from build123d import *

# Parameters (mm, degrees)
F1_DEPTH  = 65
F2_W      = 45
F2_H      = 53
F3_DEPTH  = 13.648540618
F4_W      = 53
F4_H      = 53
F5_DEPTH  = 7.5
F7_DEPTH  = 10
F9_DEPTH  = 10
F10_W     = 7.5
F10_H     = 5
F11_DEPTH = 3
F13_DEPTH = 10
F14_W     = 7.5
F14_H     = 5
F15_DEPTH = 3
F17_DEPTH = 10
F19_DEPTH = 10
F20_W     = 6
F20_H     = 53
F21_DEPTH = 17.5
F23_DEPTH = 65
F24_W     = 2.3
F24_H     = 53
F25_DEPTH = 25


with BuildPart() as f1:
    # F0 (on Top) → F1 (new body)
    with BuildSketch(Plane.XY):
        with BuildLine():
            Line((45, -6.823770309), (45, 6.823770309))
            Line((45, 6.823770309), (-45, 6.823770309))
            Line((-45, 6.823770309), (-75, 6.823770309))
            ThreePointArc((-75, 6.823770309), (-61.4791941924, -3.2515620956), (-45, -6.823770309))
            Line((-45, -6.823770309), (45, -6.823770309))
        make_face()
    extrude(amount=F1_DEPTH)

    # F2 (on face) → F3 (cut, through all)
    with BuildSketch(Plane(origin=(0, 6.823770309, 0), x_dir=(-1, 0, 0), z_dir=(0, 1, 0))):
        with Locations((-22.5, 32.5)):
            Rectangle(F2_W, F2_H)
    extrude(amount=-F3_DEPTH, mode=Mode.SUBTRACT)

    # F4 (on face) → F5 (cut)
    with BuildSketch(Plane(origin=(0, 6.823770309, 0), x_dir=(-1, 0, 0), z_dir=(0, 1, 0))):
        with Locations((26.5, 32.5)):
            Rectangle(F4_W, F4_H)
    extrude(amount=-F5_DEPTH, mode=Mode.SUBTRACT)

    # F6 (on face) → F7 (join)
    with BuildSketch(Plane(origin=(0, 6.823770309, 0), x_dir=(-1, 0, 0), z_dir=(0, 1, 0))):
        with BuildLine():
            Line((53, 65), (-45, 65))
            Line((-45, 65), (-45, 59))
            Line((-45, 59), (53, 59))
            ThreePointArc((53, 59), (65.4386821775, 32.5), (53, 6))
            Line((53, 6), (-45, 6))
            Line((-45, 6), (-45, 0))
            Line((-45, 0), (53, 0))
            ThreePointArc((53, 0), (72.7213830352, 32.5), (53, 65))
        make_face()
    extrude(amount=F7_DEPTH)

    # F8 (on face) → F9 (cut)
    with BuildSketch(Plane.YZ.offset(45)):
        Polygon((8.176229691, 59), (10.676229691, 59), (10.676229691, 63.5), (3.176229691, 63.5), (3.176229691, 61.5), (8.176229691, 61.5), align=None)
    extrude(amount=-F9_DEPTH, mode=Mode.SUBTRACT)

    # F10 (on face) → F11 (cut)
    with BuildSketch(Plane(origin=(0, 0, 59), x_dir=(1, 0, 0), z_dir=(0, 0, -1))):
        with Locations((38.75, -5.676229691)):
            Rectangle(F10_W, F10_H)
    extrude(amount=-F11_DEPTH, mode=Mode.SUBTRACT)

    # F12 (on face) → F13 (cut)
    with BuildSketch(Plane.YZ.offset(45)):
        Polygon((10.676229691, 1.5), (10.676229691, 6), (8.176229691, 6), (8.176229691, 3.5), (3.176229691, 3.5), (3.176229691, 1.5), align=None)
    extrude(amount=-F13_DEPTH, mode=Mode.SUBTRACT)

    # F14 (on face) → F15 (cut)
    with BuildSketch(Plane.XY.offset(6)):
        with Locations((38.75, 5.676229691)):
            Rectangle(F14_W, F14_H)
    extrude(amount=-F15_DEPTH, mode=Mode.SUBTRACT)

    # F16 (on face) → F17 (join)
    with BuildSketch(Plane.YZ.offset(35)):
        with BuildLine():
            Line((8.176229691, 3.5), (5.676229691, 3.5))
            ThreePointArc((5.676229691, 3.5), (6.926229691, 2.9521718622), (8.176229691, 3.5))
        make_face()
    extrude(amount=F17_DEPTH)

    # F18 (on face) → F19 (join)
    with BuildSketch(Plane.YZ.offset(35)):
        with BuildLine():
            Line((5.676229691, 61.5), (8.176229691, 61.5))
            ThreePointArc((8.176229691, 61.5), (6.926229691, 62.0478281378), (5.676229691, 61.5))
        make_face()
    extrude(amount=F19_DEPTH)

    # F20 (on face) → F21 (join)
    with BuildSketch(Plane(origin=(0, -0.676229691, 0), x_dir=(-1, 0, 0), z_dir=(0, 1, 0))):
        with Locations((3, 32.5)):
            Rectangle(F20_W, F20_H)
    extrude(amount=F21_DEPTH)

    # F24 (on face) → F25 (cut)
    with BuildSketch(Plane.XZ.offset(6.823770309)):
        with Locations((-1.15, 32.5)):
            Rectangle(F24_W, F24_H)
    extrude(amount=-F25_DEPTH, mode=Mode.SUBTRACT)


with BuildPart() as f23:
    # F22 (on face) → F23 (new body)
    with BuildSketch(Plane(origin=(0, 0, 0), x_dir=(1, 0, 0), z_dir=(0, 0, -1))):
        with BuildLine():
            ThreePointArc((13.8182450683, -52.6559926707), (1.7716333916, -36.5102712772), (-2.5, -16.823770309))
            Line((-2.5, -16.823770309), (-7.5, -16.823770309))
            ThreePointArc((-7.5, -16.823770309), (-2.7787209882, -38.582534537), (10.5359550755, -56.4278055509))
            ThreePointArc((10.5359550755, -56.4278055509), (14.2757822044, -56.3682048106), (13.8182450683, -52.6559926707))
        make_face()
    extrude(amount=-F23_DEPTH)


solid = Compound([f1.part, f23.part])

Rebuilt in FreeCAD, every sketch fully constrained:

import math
import FreeCAD as App
import Part
import Sketcher

V = App.Vector


def add_polygon(sketch, points):
    """Adds a closed chain of lines whose ends are joined by coincident constraints."""
    first, n = sketch.GeometryCount, len(points)
    for a, b in zip(points, points[1:] + points[:1]):
        sketch.addGeometry(Part.LineSegment(App.Vector(*a, 0), App.Vector(*b, 0)), False)
    for i in range(n):
        sketch.addConstraint(Sketcher.Constraint("Coincident", first + i, 2, first + (i + 1) % n, 1))

doc = App.newDocument("Part")
body = doc.addObject("PartDesign::Body", "Body")

# Sketch on XY plane
sketch1 = body.newObject("Sketcher::SketchObject", "Sketch")
sketch1.AttachmentSupport = (doc.getObject("XY_Plane"), [""])
sketch1.MapMode = "FlatFace"
sketch1.addGeometry([
    Part.LineSegment(V(45, -6.82377, 0), V(45, 6.82377, 0)),
    Part.LineSegment(V(45, 6.82377, 0), V(-75, 6.82377, 0)),
    Part.ArcOfCircle(Part.Circle(V(-45, 32.972974, 0), V(0, 0, 1), 39.796744), math.radians(-138.923287), math.radians(-90)),
    Part.LineSegment(V(-45, -6.82377, 0), V(45, -6.82377, 0)),
], False)
sketch1.addConstraint([
    Sketcher.Constraint("Coincident", 0, 2, 1, 1),
    Sketcher.Constraint("Coincident", 1, 2, 2, 1),
    Sketcher.Constraint("Tangent", 2, 2, 3, 1),
    Sketcher.Constraint("Coincident", 3, 2, 0, 1),
    Sketcher.Constraint("Vertical", 0),
    Sketcher.Constraint("Horizontal", 1),
    Sketcher.Constraint("Horizontal", 3),
    Sketcher.Constraint("Symmetric", 0, 2, 2, 2, -1, 1),
    Sketcher.Constraint("DistanceX", 1, 2, 1, 1, 120.0),
    Sketcher.Constraint("DistanceX", 3, 1, 3, 2, 90.0),
    Sketcher.Constraint("Radius", 2, 39.796744),
])
pad1 = body.newObject("PartDesign::Pad", "Pad")
pad1.Profile = sketch1
pad1.Length = 65

# Sketch on XZ plane
sketch2 = body.newObject("Sketcher::SketchObject", "Sketch001")
sketch2.AttachmentSupport = (doc.getObject("XZ_Plane"), [""])
sketch2.MapMode = "FlatFace"
sketch2.AttachmentOffset = App.Placement(V(0, 0, -6.82377), App.Rotation())
add_polygon(sketch2, [(45, 59), (45, 6), (0, 6), (0, 59)])  # lines 0-3
sketch2.addConstraint([
    Sketcher.Constraint("Vertical", 0),
    Sketcher.Constraint("Horizontal", 1),
    Sketcher.Constraint("Vertical", 2),
    Sketcher.Constraint("Horizontal", 3),
    Sketcher.Constraint("PointOnObject", 1, 2, -2),
    Sketcher.Constraint("DistanceX", 1, 2, 1, 1, 45.0),
    Sketcher.Constraint("DistanceY", 0, 2, 0, 1, 53.0),
    Sketcher.Constraint("DistanceY", -1, 1, 0, 2, 6.0),
])
pocket1 = body.newObject("PartDesign::Pocket", "Pocket")
pocket1.Profile = sketch2
pocket1.Type = "ThroughAll"
pocket1.Reversed = True

# Sketch on XZ plane
sketch3 = body.newObject("Sketcher::SketchObject", "Sketch002")
sketch3.AttachmentSupport = (doc.getObject("XZ_Plane"), [""])
sketch3.MapMode = "FlatFace"
sketch3.AttachmentOffset = App.Placement(V(0, 0, -6.82377), App.Rotation())
add_polygon(sketch3, [(0, 59), (0, 6), (-53, 6), (-53, 59)])  # lines 0-3
sketch3.addConstraint([
    Sketcher.Constraint("Vertical", 0),
    Sketcher.Constraint("Horizontal", 1),
    Sketcher.Constraint("Vertical", 2),
    Sketcher.Constraint("Horizontal", 3),
    Sketcher.Constraint("PointOnObject", 0, 2, -2),
    Sketcher.Constraint("Equal", 3, 0),
    Sketcher.Constraint("DistanceX", 1, 2, 1, 1, 53.0),
    Sketcher.Constraint("DistanceY", -1, 1, 0, 2, 6.0),
])
pocket2 = body.newObject("PartDesign::Pocket", "Pocket001")
pocket2.Profile = sketch3
pocket2.Length = 7.5
pocket2.Reversed = True

# Sketch on XZ plane
sketch4 = body.newObject("Sketcher::SketchObject", "Sketch003")
sketch4.AttachmentSupport = (doc.getObject("XZ_Plane"), [""])
sketch4.MapMode = "FlatFace"
sketch4.AttachmentOffset = App.Placement(V(0, 0, -6.82377), App.Rotation())
sketch4.addGeometry([
    Part.LineSegment(V(-53, 65, 0), V(45, 65, 0)),  # 0
    Part.LineSegment(V(45, 65, 0), V(45, 59, 0)),  # 1
    Part.LineSegment(V(45, 59, 0), V(-53, 59, 0)),  # 2
    Part.ArcOfCircle(Part.Circle(V(-30.990868, 32.5, 0), V(0, 0, 1), 34.447814), math.radians(129.710759), math.radians(230.289241)),  # 3
    Part.LineSegment(V(-53, 6, 0), V(45, 6, 0)),  # 4
    Part.LineSegment(V(45, 6, 0), V(45, 0, 0)),  # 5
    Part.LineSegment(V(45, 0, 0), V(-53, 0, 0)),  # 6
    Part.ArcOfCircle(Part.Circle(V(-36.081383, 32.5, 0), V(0, 0, 1), 36.64), math.radians(117.500261), math.radians(242.499739)),  # 7
], False)
sketch4.addConstraint([
    Sketcher.Constraint("Coincident", 0, 2, 1, 1),
    Sketcher.Constraint("Coincident", 1, 2, 2, 1),
    Sketcher.Constraint("Coincident", 2, 2, 3, 1),
    Sketcher.Constraint("Coincident", 3, 2, 4, 1),
    Sketcher.Constraint("Coincident", 4, 2, 5, 1),
    Sketcher.Constraint("Coincident", 5, 2, 6, 1),
    Sketcher.Constraint("Coincident", 6, 2, 7, 2),
    Sketcher.Constraint("Coincident", 7, 1, 0, 1),
    Sketcher.Constraint("Horizontal", 0),
    Sketcher.Constraint("Vertical", 1),
    Sketcher.Constraint("Horizontal", 2),
    Sketcher.Constraint("Horizontal", 4),
    Sketcher.Constraint("Vertical", 5),
    Sketcher.Constraint("Horizontal", 6),
    Sketcher.Constraint("PointOnObject", 5, 2, -1),
    Sketcher.Constraint("Horizontal", 3, 3, 7, 3),
    Sketcher.Constraint("Vertical", 2, 2, 3, 2),
    Sketcher.Constraint("Vertical", 1, 2, 4, 2),
    Sketcher.Constraint("Vertical", 3, 2, 6, 2),
    Sketcher.Constraint("Vertical", 6, 2, 7, 1),
    Sketcher.Constraint("DistanceX", 0, 1, 0, 2, 98.0),
    Sketcher.Constraint("DistanceY", 1, 2, 1, 1, 6.0),
    Sketcher.Constraint("Radius", 7, 36.64),
    Sketcher.Constraint("DistanceX", -1, 1, 0, 2, 45.0),
    Sketcher.Constraint("DistanceY", -1, 1, 0, 2, 65.0),
    Sketcher.Constraint("Radius", 3, 34.447814),
])
pad2 = body.newObject("PartDesign::Pad", "Pad001")
pad2.Profile = sketch4
pad2.Length = 10
pad2.Reversed = True

# Sketch on YZ plane
sketch5 = body.newObject("Sketcher::SketchObject", "Sketch004")
sketch5.AttachmentSupport = (doc.getObject("YZ_Plane"), [""])
sketch5.MapMode = "FlatFace"
sketch5.AttachmentOffset = App.Placement(V(0, 0, 45), App.Rotation())
add_polygon(sketch5, [(8.17623, 59), (10.67623, 59), (10.67623, 63.5), (3.17623, 63.5), (3.17623, 61.5), (8.17623, 61.5)])  # lines 0-5
sketch5.addConstraint([
    Sketcher.Constraint("Horizontal", 0),
    Sketcher.Constraint("Vertical", 1),
    Sketcher.Constraint("Horizontal", 2),
    Sketcher.Constraint("Vertical", 3),
    Sketcher.Constraint("Horizontal", 4),
    Sketcher.Constraint("Vertical", 5),
    Sketcher.Constraint("Equal", 0, 5),
    Sketcher.Constraint("DistanceX", 4, 1, 4, 2, 5.0),
    Sketcher.Constraint("DistanceY", 3, 2, 3, 1, 2.0),
    Sketcher.Constraint("DistanceX", 0, 1, 0, 2, 2.5),
    Sketcher.Constraint("DistanceY", -1, 1, 0, 2, 59.0),
    Sketcher.Constraint("DistanceX", -1, 1, 0, 2, 10.67623),
])
pocket3 = body.newObject("PartDesign::Pocket", "Pocket002")
pocket3.Profile = sketch5
pocket3.Length = 10

# Sketch on XY plane
sketch6 = body.newObject("Sketcher::SketchObject", "Sketch005")
sketch6.AttachmentSupport = (doc.getObject("XY_Plane"), [""])
sketch6.MapMode = "FlatFace"
sketch6.AttachmentOffset = App.Placement(V(0, 0, 59), App.Rotation())
add_polygon(sketch6, [(35, 3.17623), (35, 8.17623), (42.5, 8.17623), (42.5, 3.17623)])  # lines 0-3
sketch6.addConstraint([
    Sketcher.Constraint("Vertical", 0),
    Sketcher.Constraint("Horizontal", 1),
    Sketcher.Constraint("Vertical", 2),
    Sketcher.Constraint("Horizontal", 3),
    Sketcher.Constraint("DistanceY", 0, 1, 0, 2, 5.0),
    Sketcher.Constraint("DistanceX", 1, 1, 1, 2, 7.5),
    Sketcher.Constraint("DistanceX", -1, 1, 0, 2, 35.0),
    Sketcher.Constraint("DistanceY", -1, 1, 0, 2, 8.17623),
])
pocket4 = body.newObject("PartDesign::Pocket", "Pocket003")
pocket4.Profile = sketch6
pocket4.Length = 3
pocket4.Reversed = True

# Sketch on YZ plane
sketch7 = body.newObject("Sketcher::SketchObject", "Sketch006")
sketch7.AttachmentSupport = (doc.getObject("YZ_Plane"), [""])
sketch7.MapMode = "FlatFace"
sketch7.AttachmentOffset = App.Placement(V(0, 0, 45), App.Rotation())
add_polygon(sketch7, [(10.67623, 1.5), (10.67623, 6), (8.17623, 6), (8.17623, 3.5), (3.17623, 3.5), (3.17623, 1.5)])  # lines 0-5
sketch7.addConstraint([
    Sketcher.Constraint("Vertical", 0),
    Sketcher.Constraint("Horizontal", 1),
    Sketcher.Constraint("Vertical", 2),
    Sketcher.Constraint("Horizontal", 3),
    Sketcher.Constraint("Vertical", 4),
    Sketcher.Constraint("Horizontal", 5),
    Sketcher.Constraint("Equal", 1, 2),
    Sketcher.Constraint("DistanceX", 3, 2, 3, 1, 5.0),
    Sketcher.Constraint("DistanceY", 4, 2, 4, 1, 2.0),
    Sketcher.Constraint("DistanceX", 1, 2, 1, 1, 2.5),
    Sketcher.Constraint("DistanceY", -1, 1, 0, 2, 6.0),
    Sketcher.Constraint("DistanceX", -1, 1, 0, 2, 10.67623),
])
pocket5 = body.newObject("PartDesign::Pocket", "Pocket004")
pocket5.Profile = sketch7
pocket5.Length = 10

# Sketch on XY plane
sketch8 = body.newObject("Sketcher::SketchObject", "Sketch007")
sketch8.AttachmentSupport = (doc.getObject("XY_Plane"), [""])
sketch8.MapMode = "FlatFace"
sketch8.AttachmentOffset = App.Placement(V(0, 0, 6), App.Rotation())
add_polygon(sketch8, [(35, 8.17623), (35, 3.17623), (42.5, 3.17623), (42.5, 8.17623)])  # lines 0-3
sketch8.addConstraint([
    Sketcher.Constraint("Vertical", 0),
    Sketcher.Constraint("Horizontal", 1),
    Sketcher.Constraint("Vertical", 2),
    Sketcher.Constraint("Horizontal", 3),
    Sketcher.Constraint("DistanceY", 0, 2, 0, 1, 5.0),
    Sketcher.Constraint("DistanceX", 1, 1, 1, 2, 7.5),
    Sketcher.Constraint("DistanceX", -1, 1, 0, 2, 35.0),
    Sketcher.Constraint("DistanceY", -1, 1, 0, 2, 3.17623),
])
pocket6 = body.newObject("PartDesign::Pocket", "Pocket005")
pocket6.Profile = sketch8
pocket6.Length = 3

# Sketch on YZ plane
sketch9 = body.newObject("Sketcher::SketchObject", "Sketch008")
sketch9.AttachmentSupport = (doc.getObject("YZ_Plane"), [""])
sketch9.MapMode = "FlatFace"
sketch9.AttachmentOffset = App.Placement(V(0, 0, 35), App.Rotation())
sketch9.addGeometry([
    Part.LineSegment(V(8.17623, 3.5, 0), V(5.67623, 3.5, 0)),
    Part.ArcOfCircle(Part.Circle(V(6.92623, 4.652172, 0), V(0, 0, 1), 1.7), math.radians(-137.332075), math.radians(-42.667925)),
], False)
sketch9.addConstraint([
    Sketcher.Constraint("Coincident", 0, 1, 1, 2),
    Sketcher.Constraint("Coincident", 1, 1, 0, 2),
    Sketcher.Constraint("Horizontal", 0),
    Sketcher.Constraint("Radius", 1, 1.7),
    Sketcher.Constraint("DistanceX", 0, 2, 0, 1, 2.5),
    Sketcher.Constraint("DistanceY", -1, 1, 0, 1, 3.5),
    Sketcher.Constraint("DistanceX", -1, 1, 1, 3, 6.92623),
])
pad3 = body.newObject("PartDesign::Pad", "Pad002")
pad3.Profile = sketch9
pad3.Length = 10

# Sketch on YZ plane
sketch10 = body.newObject("Sketcher::SketchObject", "Sketch009")
sketch10.AttachmentSupport = (doc.getObject("YZ_Plane"), [""])
sketch10.MapMode = "FlatFace"
sketch10.AttachmentOffset = App.Placement(V(0, 0, 35), App.Rotation())
sketch10.addGeometry([
    Part.LineSegment(V(5.67623, 61.5, 0), V(8.17623, 61.5, 0)),
    Part.ArcOfCircle(Part.Circle(V(6.92623, 60.347828, 0), V(0, 0, 1), 1.7), math.radians(42.667925), math.radians(137.332075)),
], False)
sketch10.addConstraint([
    Sketcher.Constraint("Coincident", 0, 1, 1, 2),
    Sketcher.Constraint("Coincident", 1, 1, 0, 2),
    Sketcher.Constraint("Horizontal", 0),
    Sketcher.Constraint("Radius", 1, 1.7),
    Sketcher.Constraint("DistanceX", 0, 1, 0, 2, 2.5),
    Sketcher.Constraint("DistanceY", -1, 1, 0, 1, 61.5),
    Sketcher.Constraint("DistanceX", -1, 1, 1, 3, 6.92623),
])
pad4 = body.newObject("PartDesign::Pad", "Pad003")
pad4.Profile = sketch10
pad4.Length = 10

# Sketch on XZ plane
sketch11 = body.newObject("Sketcher::SketchObject", "Sketch010")
sketch11.AttachmentSupport = (doc.getObject("XZ_Plane"), [""])
sketch11.MapMode = "FlatFace"
sketch11.AttachmentOffset = App.Placement(V(0, 0, 0.67623), App.Rotation())
add_polygon(sketch11, [(0, 59), (0, 6), (-6, 6), (-6, 59)])  # lines 0-3
sketch11.addConstraint([
    Sketcher.Constraint("Vertical", 0),
    Sketcher.Constraint("Horizontal", 1),
    Sketcher.Constraint("Vertical", 2),
    Sketcher.Constraint("Horizontal", 3),
    Sketcher.Constraint("PointOnObject", 0, 2, -2),
    Sketcher.Constraint("DistanceX", 1, 2, 1, 1, 6.0),
    Sketcher.Constraint("DistanceY", 0, 2, 0, 1, 53.0),
    Sketcher.Constraint("DistanceY", -1, 1, 0, 2, 6.0),
])
pad5 = body.newObject("PartDesign::Pad", "Pad004")
pad5.Profile = sketch11
pad5.Length = 17.5
pad5.Reversed = True

# Sketch on XZ plane
sketch12 = body.newObject("Sketcher::SketchObject", "Sketch011")
sketch12.AttachmentSupport = (doc.getObject("XZ_Plane"), [""])
sketch12.MapMode = "FlatFace"
sketch12.AttachmentOffset = App.Placement(V(0, 0, 6.82377), App.Rotation())
add_polygon(sketch12, [(-2.3, 59), (-2.3, 6), (0, 6), (0, 59)])  # lines 0-3
sketch12.addConstraint([
    Sketcher.Constraint("Vertical", 0),
    Sketcher.Constraint("Horizontal", 1),
    Sketcher.Constraint("Vertical", 2),
    Sketcher.Constraint("Horizontal", 3),
    Sketcher.Constraint("PointOnObject", 1, 2, -2),
    Sketcher.Constraint("DistanceY", 0, 2, 0, 1, 53.0),
    Sketcher.Constraint("DistanceX", 1, 1, 1, 2, 2.3),
    Sketcher.Constraint("DistanceY", -1, 1, 0, 2, 6.0),
])
pocket7 = body.newObject("PartDesign::Pocket", "Pocket006")
pocket7.Profile = sketch12
pocket7.Length = 25
body2 = doc.addObject("PartDesign::Body", "Body001")

# Sketch on XY plane
sketch13 = body2.newObject("Sketcher::SketchObject", "Sketch012")
sketch13.AttachmentSupport = (doc.getObject("XY_Plane001"), [""])
sketch13.MapMode = "FlatFace"
sketch13.addGeometry([
    Part.ArcOfCircle(Part.Circle(V(45, 16.82377, 0), V(0, 0, 1), 47.5), math.radians(131.030296), math.radians(180)),
    Part.LineSegment(V(-2.5, 16.82377, 0), V(-7.5, 16.82377, 0)),
    Part.ArcOfCircle(Part.Circle(V(45, 16.82377, 0), V(0, 0, 1), 52.5), math.radians(131.030296), math.radians(180)),
    Part.ArcOfCircle(Part.Circle(V(12.37909, 54.717674, 0), V(0, 0, 1), 2.514298), math.radians(-55.083049), math.radians(137.14364)),
], False)
sketch13.addConstraint([
    Sketcher.Constraint("Coincident", 0, 2, 1, 1),
    Sketcher.Constraint("Coincident", 1, 2, 2, 2),
    Sketcher.Constraint("Coincident", 2, 1, 3, 2),
    Sketcher.Constraint("Coincident", 3, 1, 0, 1),
    Sketcher.Constraint("Horizontal", 1),
    Sketcher.Constraint("Coincident", 2, 3, 0, 3),
    Sketcher.Constraint("Horizontal", 2, 3, 0, 2),
    Sketcher.Constraint("Radius", 0, 47.5),
    Sketcher.Constraint("Radius", 2, 52.5),
    Sketcher.Constraint("DistanceX", -1, 1, 0, 3, 45.0),
    Sketcher.Constraint("Radius", 3, 2.514298),
    Sketcher.Constraint("DistanceY", -1, 1, 0, 3, 16.82377),
    Sketcher.Constraint("DistanceX", -1, 1, 3, 3, 12.37909),
    Sketcher.Constraint("DistanceY", 3, 1, 3, 3, 2.061681),
])
pad6 = body2.newObject("PartDesign::Pad", "Pad005")
pad6.Profile = sketch13
pad6.Length = 65

doc.recompute()
